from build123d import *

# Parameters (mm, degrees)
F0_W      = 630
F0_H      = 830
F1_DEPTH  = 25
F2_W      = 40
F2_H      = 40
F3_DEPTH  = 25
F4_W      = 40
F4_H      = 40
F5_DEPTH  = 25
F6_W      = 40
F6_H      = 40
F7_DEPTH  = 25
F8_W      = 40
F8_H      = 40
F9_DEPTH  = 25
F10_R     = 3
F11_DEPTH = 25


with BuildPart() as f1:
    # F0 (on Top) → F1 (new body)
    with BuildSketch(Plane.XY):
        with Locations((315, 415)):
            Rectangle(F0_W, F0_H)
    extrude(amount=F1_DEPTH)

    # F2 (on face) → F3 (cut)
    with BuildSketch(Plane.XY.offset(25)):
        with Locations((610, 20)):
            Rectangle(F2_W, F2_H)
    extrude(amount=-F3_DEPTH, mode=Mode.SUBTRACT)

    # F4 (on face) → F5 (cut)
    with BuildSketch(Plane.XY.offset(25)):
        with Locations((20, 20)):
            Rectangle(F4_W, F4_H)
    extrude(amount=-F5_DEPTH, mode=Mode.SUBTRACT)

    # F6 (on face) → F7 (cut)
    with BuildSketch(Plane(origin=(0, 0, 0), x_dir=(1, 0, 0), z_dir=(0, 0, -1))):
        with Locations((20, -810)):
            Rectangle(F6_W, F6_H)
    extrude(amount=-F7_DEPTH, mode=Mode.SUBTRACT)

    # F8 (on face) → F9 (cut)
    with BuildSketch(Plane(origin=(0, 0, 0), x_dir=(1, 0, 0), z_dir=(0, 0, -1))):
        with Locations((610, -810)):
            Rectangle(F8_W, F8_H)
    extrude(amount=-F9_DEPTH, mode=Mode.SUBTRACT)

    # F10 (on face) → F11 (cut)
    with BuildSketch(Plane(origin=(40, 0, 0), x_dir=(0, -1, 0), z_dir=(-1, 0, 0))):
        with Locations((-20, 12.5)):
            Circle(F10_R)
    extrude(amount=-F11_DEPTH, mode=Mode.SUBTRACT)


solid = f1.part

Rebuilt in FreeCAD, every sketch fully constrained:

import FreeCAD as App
import Part
import Sketcher
Q = App.Units.Quantity


def add_polygon(sketch, points):
    """Adds a closed chain of lines whose ends are joined by coincident constraints."""
    first, n = sketch.GeometryCount, len(points)
    for a, b in zip(points, points[1:] + points[:1]):
        sketch.addGeometry(Part.LineSegment(App.Vector(*a, 0), App.Vector(*b, 0)), False)
    for i in range(n):
        sketch.addConstraint(Sketcher.Constraint("Coincident", first + i, 2, first + (i + 1) % n, 1))

doc = App.newDocument("Part")
body = doc.addObject("PartDesign::Body", "Body")

# Sketch on XY plane
sketch1 = body.newObject("Sketcher::SketchObject", "Sketch")
sketch1.AttachmentSupport = (doc.getObject("XY_Plane"), [""])
sketch1.MapMode = "FlatFace"
add_polygon(sketch1, [(0, 830), (0, 0), (630, 0), (630, 830)])  # lines 0-3
sketch1.addConstraint([
    Sketcher.Constraint("Vertical", 0),
    Sketcher.Constraint("Horizontal", 1),
    Sketcher.Constraint("Vertical", 2),
    Sketcher.Constraint("Horizontal", 3),
    Sketcher.Constraint("Coincident", 0, 2, -1, 1),
    Sketcher.Constraint("DistanceX", 1, 1, 1, 2, Q("630 mm")),
    Sketcher.Constraint("DistanceY", 0, 2, 0, 1, Q("830 mm")),
])
pad1 = body.newObject("PartDesign::Pad", "Pad")
pad1.Profile = sketch1
pad1.Length = 25

# Sketch on XY plane
sketch2 = body.newObject("Sketcher::SketchObject", "Sketch001")
sketch2.AttachmentSupport = (doc.getObject("XY_Plane"), [""])
sketch2.MapMode = "FlatFace"
sketch2.AttachmentOffset = App.Placement(App.Vector(0, 0, 25), App.Rotation())
add_polygon(sketch2, [(590, 40), (590, 0), (630, 0), (630, 40)])  # lines 0-3
sketch2.addConstraint([
    Sketcher.Constraint("Vertical", 0),
    Sketcher.Constraint("Horizontal", 1),
    Sketcher.Constraint("Vertical", 2),
    Sketcher.Constraint("Horizontal", 3),
    Sketcher.Constraint("PointOnObject", 0, 2, -1),
    Sketcher.Constraint("Equal", 3, 0),
    Sketcher.Constraint("DistanceX", 1, 1, 1, 2, Q("40 mm")),
    Sketcher.Constraint("DistanceX", -1, 1, 0, 2, Q("590 mm")),
])
pocket1 = body.newObject("PartDesign::Pocket", "Pocket")
pocket1.Profile = sketch2
pocket1.Length = 25

# Sketch on XY plane
sketch3 = body.newObject("Sketcher::SketchObject", "Sketch002")
sketch3.AttachmentSupport = (doc.getObject("XY_Plane"), [""])
sketch3.MapMode = "FlatFace"
sketch3.AttachmentOffset = App.Placement(App.Vector(0, 0, 25), App.Rotation())
add_polygon(sketch3, [(0, 40), (0, 0), (40, 0), (40, 40)])  # lines 0-3
sketch3.addConstraint([
    Sketcher.Constraint("Vertical", 0),
    Sketcher.Constraint("Horizontal", 1),
    Sketcher.Constraint("Vertical", 2),
    Sketcher.Constraint("Horizontal", 3),
    Sketcher.Constraint("Coincident", 0, 2, -1, 1),
    Sketcher.Constraint("Equal", 3, 0),
    Sketcher.Constraint("DistanceX", 1, 1, 1, 2, Q("40 mm")),
])
pocket2 = body.newObject("PartDesign::Pocket", "Pocket001")
pocket2.Profile = sketch3
pocket2.Length = 25

# Sketch on XY plane
sketch4 = body.newObject("Sketcher::SketchObject", "Sketch003")
sketch4.AttachmentSupport = (doc.getObject("XY_Plane"), [""])
sketch4.MapMode = "FlatFace"
add_polygon(sketch4, [(0, 790), (0, 830), (40, 830), (40, 790)])  # lines 0-3
sketch4.addConstraint([
    Sketcher.Constraint("Vertical", 0),
    Sketcher.Constraint("Horizontal", 1),
    Sketcher.Constraint("Vertical", 2),
    Sketcher.Constraint("Horizontal", 3),
    Sketcher.Constraint("PointOnObject", 0, 2, -2),
    Sketcher.Constraint("Equal", 3, 0),
    Sketcher.Constraint("DistanceX", 1, 1, 1, 2, Q("40 mm")),
    Sketcher.Constraint("DistanceY", -1, 1, 0, 2, Q("830 mm")),
])
pocket3 = body.newObject("PartDesign::Pocket", "Pocket002")
pocket3.Profile = sketch4
pocket3.Length = 25
pocket3.Reversed = True

# Sketch on XY plane
sketch5 = body.newObject("Sketcher::SketchObject", "Sketch004")
sketch5.AttachmentSupport = (doc.getObject("XY_Plane"), [""])
sketch5.MapMode = "FlatFace"
add_polygon(sketch5, [(590, 790), (590, 830), (630, 830), (630, 790)])  # lines 0-3
sketch5.addConstraint([
    Sketcher.Constraint("Vertical", 0),
    Sketcher.Constraint("Horizontal", 1),
    Sketcher.Constraint("Vertical", 2),
    Sketcher.Constraint("Horizontal", 3),
    Sketcher.Constraint("Equal", 3, 0),
    Sketcher.Constraint("DistanceX", 1, 1, 1, 2, Q("40 mm")),
    Sketcher.Constraint("DistanceX", -1, 1, 0, 2, Q("590 mm")),
    Sketcher.Constraint("DistanceY", -1, 1, 0, 2, Q("830 mm")),
])
pocket4 = body.newObject("PartDesign::Pocket", "Pocket003")
pocket4.Profile = sketch5
pocket4.Length = 25
pocket4.Reversed = True

# Sketch on YZ plane
sketch6 = body.newObject("Sketcher::SketchObject", "Sketch005")
sketch6.AttachmentSupport = (doc.getObject("YZ_Plane"), [""])
sketch6.MapMode = "FlatFace"
sketch6.AttachmentOffset = App.Placement(App.Vector(0, 0, 40), App.Rotation())
sketch6.addGeometry(Part.Circle(App.Vector(20, 12.5, 0), App.Vector(0, 0, 1), 3), False)
sketch6.addConstraint([
    Sketcher.Constraint("Diameter", 0, Q("6 mm")),
    Sketcher.Constraint("DistanceX", -1, 1, 0, 3, Q("20 mm")),
    Sketcher.Constraint("DistanceY", -1, 1, 0, 3, Q("12.5 mm")),
])
pocket5 = body.newObject("PartDesign::Pocket", "Pocket004")
pocket5.Profile = sketch6
pocket5.Length = 25
pocket5.Reversed = True

doc.recompute()
